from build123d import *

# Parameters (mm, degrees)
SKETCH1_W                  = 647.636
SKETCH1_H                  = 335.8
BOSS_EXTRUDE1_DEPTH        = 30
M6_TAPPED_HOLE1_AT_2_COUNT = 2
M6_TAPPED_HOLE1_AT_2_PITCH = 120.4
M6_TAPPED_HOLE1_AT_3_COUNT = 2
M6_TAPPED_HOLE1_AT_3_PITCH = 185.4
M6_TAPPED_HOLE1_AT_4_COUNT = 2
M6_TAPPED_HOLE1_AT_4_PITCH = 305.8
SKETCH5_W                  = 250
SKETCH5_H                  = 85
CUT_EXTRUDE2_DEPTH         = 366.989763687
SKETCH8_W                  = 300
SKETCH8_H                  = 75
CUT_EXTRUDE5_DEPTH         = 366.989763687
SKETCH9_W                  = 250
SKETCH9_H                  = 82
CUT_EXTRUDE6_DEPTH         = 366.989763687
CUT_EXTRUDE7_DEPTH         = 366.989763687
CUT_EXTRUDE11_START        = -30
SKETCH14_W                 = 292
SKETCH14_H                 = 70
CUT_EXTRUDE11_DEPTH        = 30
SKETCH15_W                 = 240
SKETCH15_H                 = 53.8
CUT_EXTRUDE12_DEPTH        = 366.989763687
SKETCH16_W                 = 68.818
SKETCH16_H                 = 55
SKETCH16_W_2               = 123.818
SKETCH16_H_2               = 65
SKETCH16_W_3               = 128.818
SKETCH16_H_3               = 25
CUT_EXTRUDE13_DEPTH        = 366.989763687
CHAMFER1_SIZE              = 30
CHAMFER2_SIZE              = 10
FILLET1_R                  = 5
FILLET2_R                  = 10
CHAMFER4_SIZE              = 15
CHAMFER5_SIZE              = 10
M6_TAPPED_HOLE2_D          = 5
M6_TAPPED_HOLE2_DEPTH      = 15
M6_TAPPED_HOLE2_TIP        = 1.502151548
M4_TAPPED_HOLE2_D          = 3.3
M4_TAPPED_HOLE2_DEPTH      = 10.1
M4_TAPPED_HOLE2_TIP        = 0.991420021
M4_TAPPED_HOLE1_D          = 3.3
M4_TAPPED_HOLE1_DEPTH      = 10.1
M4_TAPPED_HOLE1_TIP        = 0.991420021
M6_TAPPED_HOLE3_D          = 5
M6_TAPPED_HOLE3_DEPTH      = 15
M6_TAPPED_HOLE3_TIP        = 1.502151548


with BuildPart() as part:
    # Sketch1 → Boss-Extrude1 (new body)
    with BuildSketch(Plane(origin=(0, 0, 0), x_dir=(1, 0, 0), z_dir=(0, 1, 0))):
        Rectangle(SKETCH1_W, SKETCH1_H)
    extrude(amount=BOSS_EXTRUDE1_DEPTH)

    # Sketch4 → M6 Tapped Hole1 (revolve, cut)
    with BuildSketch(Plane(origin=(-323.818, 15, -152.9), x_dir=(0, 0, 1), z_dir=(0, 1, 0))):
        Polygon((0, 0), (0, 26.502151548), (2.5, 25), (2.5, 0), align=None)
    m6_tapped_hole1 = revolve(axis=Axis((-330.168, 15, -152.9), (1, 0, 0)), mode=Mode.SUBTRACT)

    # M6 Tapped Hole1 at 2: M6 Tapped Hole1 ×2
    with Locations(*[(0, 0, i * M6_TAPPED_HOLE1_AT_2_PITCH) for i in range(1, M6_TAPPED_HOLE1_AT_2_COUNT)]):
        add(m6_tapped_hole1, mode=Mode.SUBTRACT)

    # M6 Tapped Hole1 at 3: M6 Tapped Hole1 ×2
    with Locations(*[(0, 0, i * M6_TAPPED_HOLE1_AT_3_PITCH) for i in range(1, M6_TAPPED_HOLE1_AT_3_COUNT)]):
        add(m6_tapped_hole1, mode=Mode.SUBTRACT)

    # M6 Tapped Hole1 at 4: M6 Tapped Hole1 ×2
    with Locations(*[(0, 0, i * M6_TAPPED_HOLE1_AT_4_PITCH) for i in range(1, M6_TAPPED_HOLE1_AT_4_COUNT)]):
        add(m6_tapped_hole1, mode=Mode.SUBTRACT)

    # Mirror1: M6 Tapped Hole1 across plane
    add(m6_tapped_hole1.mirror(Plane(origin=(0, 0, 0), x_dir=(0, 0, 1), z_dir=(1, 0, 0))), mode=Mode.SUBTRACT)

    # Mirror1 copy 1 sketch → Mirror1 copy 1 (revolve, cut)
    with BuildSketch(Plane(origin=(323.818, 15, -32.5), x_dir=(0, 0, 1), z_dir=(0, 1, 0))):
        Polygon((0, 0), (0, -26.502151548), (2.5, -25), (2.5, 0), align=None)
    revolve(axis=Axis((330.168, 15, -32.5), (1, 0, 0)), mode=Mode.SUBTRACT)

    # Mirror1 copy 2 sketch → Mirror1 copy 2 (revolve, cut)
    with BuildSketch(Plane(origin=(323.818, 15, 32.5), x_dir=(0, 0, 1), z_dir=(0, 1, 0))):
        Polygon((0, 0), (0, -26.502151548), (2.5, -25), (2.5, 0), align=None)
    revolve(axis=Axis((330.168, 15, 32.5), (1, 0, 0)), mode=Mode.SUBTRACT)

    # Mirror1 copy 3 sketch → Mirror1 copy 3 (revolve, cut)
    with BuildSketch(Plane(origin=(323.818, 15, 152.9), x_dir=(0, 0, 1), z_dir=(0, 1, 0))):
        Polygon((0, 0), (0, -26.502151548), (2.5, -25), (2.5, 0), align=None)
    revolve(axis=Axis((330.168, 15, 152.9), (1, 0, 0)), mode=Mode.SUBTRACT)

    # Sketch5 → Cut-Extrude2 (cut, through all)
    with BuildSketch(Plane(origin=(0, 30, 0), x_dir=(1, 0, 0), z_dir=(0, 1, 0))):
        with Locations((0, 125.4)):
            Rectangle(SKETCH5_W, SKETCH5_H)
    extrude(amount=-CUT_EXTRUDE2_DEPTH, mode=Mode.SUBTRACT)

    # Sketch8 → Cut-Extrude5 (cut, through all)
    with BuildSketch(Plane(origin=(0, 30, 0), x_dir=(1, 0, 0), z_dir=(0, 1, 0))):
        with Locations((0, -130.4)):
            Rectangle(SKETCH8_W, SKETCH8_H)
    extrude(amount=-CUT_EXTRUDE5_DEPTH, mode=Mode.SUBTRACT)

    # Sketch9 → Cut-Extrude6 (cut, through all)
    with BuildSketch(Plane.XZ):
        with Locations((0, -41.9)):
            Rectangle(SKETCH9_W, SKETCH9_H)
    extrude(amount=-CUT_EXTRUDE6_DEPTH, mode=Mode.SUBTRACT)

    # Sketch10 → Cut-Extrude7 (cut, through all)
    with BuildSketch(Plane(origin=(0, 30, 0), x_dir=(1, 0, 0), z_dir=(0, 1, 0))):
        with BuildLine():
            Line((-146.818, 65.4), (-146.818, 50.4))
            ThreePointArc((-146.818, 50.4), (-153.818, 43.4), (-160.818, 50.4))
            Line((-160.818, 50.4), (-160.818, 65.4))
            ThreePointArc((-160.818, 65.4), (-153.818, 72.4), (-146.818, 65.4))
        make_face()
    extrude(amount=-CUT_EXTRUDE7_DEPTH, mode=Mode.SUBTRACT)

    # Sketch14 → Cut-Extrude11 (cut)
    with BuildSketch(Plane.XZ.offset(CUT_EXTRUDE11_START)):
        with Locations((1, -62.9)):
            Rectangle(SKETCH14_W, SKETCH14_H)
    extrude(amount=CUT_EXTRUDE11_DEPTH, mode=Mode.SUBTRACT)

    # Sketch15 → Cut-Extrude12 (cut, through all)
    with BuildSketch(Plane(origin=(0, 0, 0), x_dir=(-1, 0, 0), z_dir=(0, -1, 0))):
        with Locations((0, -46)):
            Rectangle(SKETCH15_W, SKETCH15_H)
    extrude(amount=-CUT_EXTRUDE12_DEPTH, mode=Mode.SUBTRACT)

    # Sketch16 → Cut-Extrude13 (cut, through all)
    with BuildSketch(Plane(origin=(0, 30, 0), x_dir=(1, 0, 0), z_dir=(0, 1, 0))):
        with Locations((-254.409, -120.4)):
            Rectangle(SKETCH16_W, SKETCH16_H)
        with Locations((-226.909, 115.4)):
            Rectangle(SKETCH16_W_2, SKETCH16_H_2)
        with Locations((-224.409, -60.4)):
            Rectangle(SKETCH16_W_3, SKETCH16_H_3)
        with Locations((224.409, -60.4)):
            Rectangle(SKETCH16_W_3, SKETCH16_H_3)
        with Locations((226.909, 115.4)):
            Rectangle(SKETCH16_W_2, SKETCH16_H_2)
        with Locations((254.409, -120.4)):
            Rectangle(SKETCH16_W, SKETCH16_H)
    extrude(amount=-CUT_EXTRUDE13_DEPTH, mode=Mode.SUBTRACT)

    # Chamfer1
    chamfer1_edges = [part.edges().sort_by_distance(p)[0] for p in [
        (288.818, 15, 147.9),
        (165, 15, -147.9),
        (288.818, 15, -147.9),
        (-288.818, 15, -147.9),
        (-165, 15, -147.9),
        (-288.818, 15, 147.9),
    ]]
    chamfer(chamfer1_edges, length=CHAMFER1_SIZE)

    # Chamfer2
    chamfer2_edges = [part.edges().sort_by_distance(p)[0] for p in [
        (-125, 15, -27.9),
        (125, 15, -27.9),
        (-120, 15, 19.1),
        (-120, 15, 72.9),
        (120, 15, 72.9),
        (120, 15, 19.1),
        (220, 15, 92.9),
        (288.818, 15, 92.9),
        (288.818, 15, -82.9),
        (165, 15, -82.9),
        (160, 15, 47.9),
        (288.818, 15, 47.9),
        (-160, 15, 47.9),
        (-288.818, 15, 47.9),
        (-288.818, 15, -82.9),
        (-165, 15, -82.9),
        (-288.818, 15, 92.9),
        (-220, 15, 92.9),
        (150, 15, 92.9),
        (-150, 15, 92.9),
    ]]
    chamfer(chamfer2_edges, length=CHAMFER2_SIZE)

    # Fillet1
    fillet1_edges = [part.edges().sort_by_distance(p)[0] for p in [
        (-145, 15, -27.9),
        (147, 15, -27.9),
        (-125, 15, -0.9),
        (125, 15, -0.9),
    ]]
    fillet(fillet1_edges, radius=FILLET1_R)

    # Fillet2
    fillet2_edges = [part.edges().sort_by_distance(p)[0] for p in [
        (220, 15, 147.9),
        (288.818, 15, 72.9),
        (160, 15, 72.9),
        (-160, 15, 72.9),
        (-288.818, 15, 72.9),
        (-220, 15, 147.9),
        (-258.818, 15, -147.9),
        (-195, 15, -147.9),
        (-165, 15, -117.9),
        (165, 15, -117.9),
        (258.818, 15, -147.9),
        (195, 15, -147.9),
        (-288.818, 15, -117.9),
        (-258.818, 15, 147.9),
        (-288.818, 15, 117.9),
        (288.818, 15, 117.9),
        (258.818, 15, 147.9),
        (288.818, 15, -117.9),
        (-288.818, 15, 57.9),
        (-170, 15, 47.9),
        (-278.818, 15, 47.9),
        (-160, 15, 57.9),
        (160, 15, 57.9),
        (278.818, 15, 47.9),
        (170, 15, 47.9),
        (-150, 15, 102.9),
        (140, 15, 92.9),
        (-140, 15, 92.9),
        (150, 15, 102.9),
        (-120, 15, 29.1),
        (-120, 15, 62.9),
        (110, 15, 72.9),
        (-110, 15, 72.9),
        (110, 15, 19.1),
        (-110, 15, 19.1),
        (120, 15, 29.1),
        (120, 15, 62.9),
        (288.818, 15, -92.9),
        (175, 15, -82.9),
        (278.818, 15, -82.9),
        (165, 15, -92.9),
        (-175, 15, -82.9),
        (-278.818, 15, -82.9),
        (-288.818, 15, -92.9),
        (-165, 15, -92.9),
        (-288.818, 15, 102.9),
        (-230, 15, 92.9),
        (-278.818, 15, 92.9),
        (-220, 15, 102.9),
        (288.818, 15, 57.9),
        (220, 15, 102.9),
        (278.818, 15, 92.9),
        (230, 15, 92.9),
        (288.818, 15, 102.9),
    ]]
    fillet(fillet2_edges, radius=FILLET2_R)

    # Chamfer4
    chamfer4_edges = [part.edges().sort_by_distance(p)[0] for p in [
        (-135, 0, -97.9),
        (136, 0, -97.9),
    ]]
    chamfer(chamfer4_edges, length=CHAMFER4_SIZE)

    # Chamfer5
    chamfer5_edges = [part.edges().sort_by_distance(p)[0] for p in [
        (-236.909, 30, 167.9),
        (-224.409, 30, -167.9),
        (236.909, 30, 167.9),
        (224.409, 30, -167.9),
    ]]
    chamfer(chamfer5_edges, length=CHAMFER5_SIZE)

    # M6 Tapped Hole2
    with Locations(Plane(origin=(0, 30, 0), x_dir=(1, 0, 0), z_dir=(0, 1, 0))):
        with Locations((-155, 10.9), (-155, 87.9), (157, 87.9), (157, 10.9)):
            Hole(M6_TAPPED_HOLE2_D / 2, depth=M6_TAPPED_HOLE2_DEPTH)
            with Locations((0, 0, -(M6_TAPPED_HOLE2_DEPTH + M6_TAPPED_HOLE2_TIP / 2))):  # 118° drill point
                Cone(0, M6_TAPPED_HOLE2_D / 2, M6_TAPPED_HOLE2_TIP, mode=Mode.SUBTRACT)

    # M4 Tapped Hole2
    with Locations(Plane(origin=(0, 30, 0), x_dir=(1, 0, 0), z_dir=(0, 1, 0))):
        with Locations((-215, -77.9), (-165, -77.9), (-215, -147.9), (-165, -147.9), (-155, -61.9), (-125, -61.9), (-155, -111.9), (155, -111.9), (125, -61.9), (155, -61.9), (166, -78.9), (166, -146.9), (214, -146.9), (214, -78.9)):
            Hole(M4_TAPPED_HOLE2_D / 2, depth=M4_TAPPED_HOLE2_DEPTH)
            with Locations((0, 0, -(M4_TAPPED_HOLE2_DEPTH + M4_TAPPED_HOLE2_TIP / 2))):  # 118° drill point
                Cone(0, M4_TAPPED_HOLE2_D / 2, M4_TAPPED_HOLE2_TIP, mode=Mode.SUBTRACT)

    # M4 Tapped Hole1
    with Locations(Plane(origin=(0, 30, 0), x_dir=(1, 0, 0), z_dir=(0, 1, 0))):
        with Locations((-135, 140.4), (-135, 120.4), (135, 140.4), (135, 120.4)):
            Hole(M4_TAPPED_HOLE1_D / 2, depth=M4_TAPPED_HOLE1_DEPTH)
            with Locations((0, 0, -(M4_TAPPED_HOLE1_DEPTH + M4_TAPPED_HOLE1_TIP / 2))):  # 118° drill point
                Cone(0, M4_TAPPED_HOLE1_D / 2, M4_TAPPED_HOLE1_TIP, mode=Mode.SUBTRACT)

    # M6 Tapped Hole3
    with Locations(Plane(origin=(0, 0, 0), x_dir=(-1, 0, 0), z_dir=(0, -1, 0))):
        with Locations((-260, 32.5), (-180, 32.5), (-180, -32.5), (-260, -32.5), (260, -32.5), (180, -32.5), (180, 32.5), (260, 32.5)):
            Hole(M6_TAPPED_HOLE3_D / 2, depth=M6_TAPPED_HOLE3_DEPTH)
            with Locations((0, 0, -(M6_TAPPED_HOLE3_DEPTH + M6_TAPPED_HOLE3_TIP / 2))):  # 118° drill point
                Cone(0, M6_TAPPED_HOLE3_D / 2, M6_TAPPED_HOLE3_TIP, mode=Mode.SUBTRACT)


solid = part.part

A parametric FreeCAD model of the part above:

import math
import FreeCAD as App
import Part
import Sketcher
Q = App.Units.Quantity


def edges_at(feature, points):
    """Names of the edges that pass closest to the given points."""
    edges = feature.Shape.Edges
    near = lambda p: min(range(len(edges)), key=lambda i: edges[i].distToShape(Part.Vertex(*p))[0])
    return sorted({f"Edge{near(p) + 1}" for p in points})

doc = App.newDocument("Part")
body = doc.addObject("PartDesign::Body", "Body")

sketch1 = body.newObject("Sketcher::SketchObject", "Sketch")
sketch1.AttachmentSupport = (doc.getObject("XZ_Plane"), [""])
sketch1.MapMode = "FlatFace"
sketch1.addGeometry(Part.LineSegment(App.Vector(-323.818, -167.9, 0), App.Vector(-323.818, 167.9, 0)), False)
sketch1.addGeometry(Part.LineSegment(App.Vector(-323.818, 167.9, 0), App.Vector(323.818, 167.9, 0)), False)
sketch1.addGeometry(Part.LineSegment(App.Vector(323.818, 167.9, 0), App.Vector(323.818, -167.9, 0)), False)
sketch1.addGeometry(Part.LineSegment(App.Vector(323.818, -167.9, 0), App.Vector(-323.818, -167.9, 0)), False)
sketch1.addConstraint(Sketcher.Constraint("Coincident", 0, 2, 1, 1))
sketch1.addConstraint(Sketcher.Constraint("Coincident", 1, 2, 2, 1))
sketch1.addConstraint(Sketcher.Constraint("Coincident", 2, 2, 3, 1))
sketch1.addConstraint(Sketcher.Constraint("Coincident", 3, 2, 0, 1))
sketch1.addConstraint(Sketcher.Constraint("Vertical", 0))
sketch1.addConstraint(Sketcher.Constraint("Horizontal", 1))
sketch1.addConstraint(Sketcher.Constraint("Vertical", 2))
sketch1.addConstraint(Sketcher.Constraint("Horizontal", 3))
sketch1.addConstraint(Sketcher.Constraint("Symmetric", 0, 2, 2, 2, -1, 1))
sketch1.addConstraint(Sketcher.Constraint("DistanceY", 0, 1, 0, 2, 335.8))
sketch1.addConstraint(Sketcher.Constraint("DistanceX", 1, 1, 1, 2, 647.636))
pad1 = body.newObject("PartDesign::Pad", "Pad")
pad1.Profile = sketch1
pad1.Length = 30
pad1.Reversed = True

sketch2 = body.newObject("Sketcher::SketchObject", "Sketch001")
sketch2.AttachmentSupport = (doc.getObject("XZ_Plane"), [""])
sketch2.MapMode = "FlatFace"
sketch2.AttachmentOffset = App.Placement(App.Vector(0, 0, -15), App.Rotation())
sketch2.addGeometry(Part.LineSegment(App.Vector(-297.315848, -152.9, 0), App.Vector(-323.818, -152.9, 0)), False)
sketch2.addGeometry(Part.LineSegment(App.Vector(-323.818, -152.9, 0), App.Vector(-323.818, -150.4, 0)), False)
sketch2.addGeometry(Part.LineSegment(App.Vector(-323.818, -150.4, 0), App.Vector(-298.818, -150.4, 0)), False)
sketch2.addGeometry(Part.LineSegment(App.Vector(-298.818, -150.4, 0), App.Vector(-297.315848, -152.9, 0)), False)
sketch2.addGeometry(Part.LineSegment(App.Vector(-323.818, -152.9, 0), App.Vector(-297.315848, -152.9, 0)), True)
sketch2.addConstraint(Sketcher.Constraint("Coincident", 0, 2, 1, 1))
sketch2.addConstraint(Sketcher.Constraint("Coincident", 1, 2, 2, 1))
sketch2.addConstraint(Sketcher.Constraint("Coincident", 2, 2, 3, 1))
sketch2.addConstraint(Sketcher.Constraint("Coincident", 3, 2, 0, 1))
sketch2.addConstraint(Sketcher.Constraint("Horizontal", 0))
sketch2.addConstraint(Sketcher.Constraint("Vertical", 1))
sketch2.addConstraint(Sketcher.Constraint("Horizontal", 2))
sketch2.addConstraint(Sketcher.Constraint("Horizontal", 4))
sketch2.addConstraint(Sketcher.Constraint("Coincident", 4, 1, 0, 2))
sketch2.addConstraint(Sketcher.Constraint("Equal", 0, 4))
sketch2.addConstraint(Sketcher.Constraint("DistanceX", 2, 1, 2, 2, 25.0))
sketch2.addConstraint(Sketcher.Constraint("Angle", 3, Q("-59 deg")))
sketch2.addConstraint(Sketcher.Constraint("DistanceY", 1, 1, 1, 2, 2.5))
sketch2.addConstraint(Sketcher.Constraint("DistanceY", 0, 2, -1, 1, 152.9))
sketch2.addConstraint(Sketcher.Constraint("DistanceX", 0, 2, -1, 1, 323.818))
groove = body.newObject("PartDesign::Groove", "Groove")
groove.Profile = sketch2
groove.ReferenceAxis = (sketch2, ["Axis0"])
groove.Angle = 360
doc.recompute()

linearpattern = body.newObject("PartDesign::LinearPattern", "LinearPattern")
linearpattern.Originals = [groove]
linearpattern.Direction = (doc.getObject("Z_Axis"), [""])
linearpattern.Mode = "offset"
linearpattern.Offset = 120.4
linearpattern.Occurrences = 2
body.Tip = linearpattern
doc.recompute()

linearpattern2 = body.newObject("PartDesign::LinearPattern", "LinearPattern001")
linearpattern2.Originals = [groove]
linearpattern2.Direction = (doc.getObject("Z_Axis"), [""])
linearpattern2.Mode = "offset"
linearpattern2.Offset = 185.4
linearpattern2.Occurrences = 2
body.Tip = linearpattern2
doc.recompute()

linearpattern3 = body.newObject("PartDesign::LinearPattern", "LinearPattern002")
linearpattern3.Originals = [groove]
linearpattern3.Direction = (doc.getObject("Z_Axis"), [""])
linearpattern3.Mode = "offset"
linearpattern3.Offset = 305.8
linearpattern3.Occurrences = 2
body.Tip = linearpattern3
doc.recompute()

mirrored = body.newObject("PartDesign::Mirrored", "Mirrored")
mirrored.Originals = [groove]
mirrored.MirrorPlane = (doc.getObject("YZ_Plane"), [""])
body.Tip = mirrored

sketch3 = body.newObject("Sketcher::SketchObject", "Sketch002")
sketch3.AttachmentSupport = (doc.getObject("XZ_Plane"), [""])
sketch3.MapMode = "FlatFace"
sketch3.AttachmentOffset = App.Placement(App.Vector(0, 0, -15), App.Rotation())
sketch3.addGeometry(Part.LineSegment(App.Vector(323.818, -32.5, 0), App.Vector(297.315848, -32.5, 0)), False)
sketch3.addGeometry(Part.LineSegment(App.Vector(297.315848, -32.5, 0), App.Vector(298.818, -30, 0)), False)
sketch3.addGeometry(Part.LineSegment(App.Vector(298.818, -30, 0), App.Vector(323.818, -30, 0)), False)
sketch3.addGeometry(Part.LineSegment(App.Vector(323.818, -30, 0), App.Vector(323.818, -32.5, 0)), False)
sketch3.addGeometry(Part.LineSegment(App.Vector(297.315848, -32.5, 0), App.Vector(323.818, -32.5, 0)), True)
sketch3.addConstraint(Sketcher.Constraint("Coincident", 0, 2, 1, 1))
sketch3.addConstraint(Sketcher.Constraint("Coincident", 1, 2, 2, 1))
sketch3.addConstraint(Sketcher.Constraint("Coincident", 2, 2, 3, 1))
sketch3.addConstraint(Sketcher.Constraint("Coincident", 3, 2, 0, 1))
sketch3.addConstraint(Sketcher.Constraint("Horizontal", 0))
sketch3.addConstraint(Sketcher.Constraint("Horizontal", 2))
sketch3.addConstraint(Sketcher.Constraint("Vertical", 3))
sketch3.addConstraint(Sketcher.Constraint("Horizontal", 4))
sketch3.addConstraint(Sketcher.Constraint("Coincident", 4, 1, 0, 2))
sketch3.addConstraint(Sketcher.Constraint("Vertical", 2, 2, 4, 2))
sketch3.addConstraint(Sketcher.Constraint("DistanceX", 2, 1, 2, 2, 25.0))
sketch3.addConstraint(Sketcher.Constraint("Angle", 1, Q("59 deg")))
sketch3.addConstraint(Sketcher.Constraint("DistanceY", 3, 2, 3, 1, 2.5))
sketch3.addConstraint(Sketcher.Constraint("DistanceY", 1, 2, -1, 1, 30.0))
sketch3.addConstraint(Sketcher.Constraint("DistanceX", -1, 1, 1, 2, 298.818))
groove2 = body.newObject("PartDesign::Groove", "Groove001")
groove2.Profile = sketch3
groove2.ReferenceAxis = (sketch3, ["Axis0"])
groove2.Angle = 360

sketch4 = body.newObject("Sketcher::SketchObject", "Sketch003")
sketch4.AttachmentSupport = (doc.getObject("XZ_Plane"), [""])
sketch4.MapMode = "FlatFace"
sketch4.AttachmentOffset = App.Placement(App.Vector(0, 0, -15), App.Rotation())
sketch4.addGeometry(Part.LineSegment(App.Vector(323.818, 32.5, 0), App.Vector(297.315848, 32.5, 0)), False)
sketch4.addGeometry(Part.LineSegment(App.Vector(297.315848, 32.5, 0), App.Vector(298.818, 35, 0)), False)
sketch4.addGeometry(Part.LineSegment(App.Vector(298.818, 35, 0), App.Vector(323.818, 35, 0)), False)
sketch4.addGeometry(Part.LineSegment(App.Vector(323.818, 35, 0), App.Vector(323.818, 32.5, 0)), False)
sketch4.addGeometry(Part.LineSegment(App.Vector(297.315848, 32.5, 0), App.Vector(323.818, 32.5, 0)), True)
sketch4.addConstraint(Sketcher.Constraint("Coincident", 0, 2, 1, 1))
sketch4.addConstraint(Sketcher.Constraint("Coincident", 1, 2, 2, 1))
sketch4.addConstraint(Sketcher.Constraint("Coincident", 2, 2, 3, 1))
sketch4.addConstraint(Sketcher.Constraint("Coincident", 3, 2, 0, 1))
sketch4.addConstraint(Sketcher.Constraint("Horizontal", 0))
sketch4.addConstraint(Sketcher.Constraint("Horizontal", 2))
sketch4.addConstraint(Sketcher.Constraint("Vertical", 3))
sketch4.addConstraint(Sketcher.Constraint("Horizontal", 4))
sketch4.addConstraint(Sketcher.Constraint("Coincident", 4, 1, 0, 2))
sketch4.addConstraint(Sketcher.Constraint("Vertical", 2, 2, 4, 2))
sketch4.addConstraint(Sketcher.Constraint("DistanceX", 2, 1, 2, 2, 25.0))
sketch4.addConstraint(Sketcher.Constraint("Angle", 1, Q("59 deg")))
sketch4.addConstraint(Sketcher.Constraint("DistanceY", 3, 2, 3, 1, 2.5))
sketch4.addConstraint(Sketcher.Constraint("DistanceY", -1, 1, 1, 2, 35.0))
sketch4.addConstraint(Sketcher.Constraint("DistanceX", -1, 1, 1, 2, 298.818))
groove3 = body.newObject("PartDesign::Groove", "Groove002")
groove3.Profile = sketch4
groove3.ReferenceAxis = (sketch4, ["Axis0"])
groove3.Angle = 360

sketch5 = body.newObject("Sketcher::SketchObject", "Sketch004")
sketch5.AttachmentSupport = (doc.getObject("XZ_Plane"), [""])
sketch5.MapMode = "FlatFace"
sketch5.AttachmentOffset = App.Placement(App.Vector(0, 0, -15), App.Rotation())
sketch5.addGeometry(Part.LineSegment(App.Vector(323.818, 152.9, 0), App.Vector(297.315848, 152.9, 0)), False)
sketch5.addGeometry(Part.LineSegment(App.Vector(297.315848, 152.9, 0), App.Vector(298.818, 155.4, 0)), False)
sketch5.addGeometry(Part.LineSegment(App.Vector(298.818, 155.4, 0), App.Vector(323.818, 155.4, 0)), False)
sketch5.addGeometry(Part.LineSegment(App.Vector(323.818, 155.4, 0), App.Vector(323.818, 152.9, 0)), False)
sketch5.addGeometry(Part.LineSegment(App.Vector(297.315848, 152.9, 0), App.Vector(323.818, 152.9, 0)), True)
sketch5.addConstraint(Sketcher.Constraint("Coincident", 0, 2, 1, 1))
sketch5.addConstraint(Sketcher.Constraint("Coincident", 1, 2, 2, 1))
sketch5.addConstraint(Sketcher.Constraint("Coincident", 2, 2, 3, 1))
sketch5.addConstraint(Sketcher.Constraint("Coincident", 3, 2, 0, 1))
sketch5.addConstraint(Sketcher.Constraint("Horizontal", 0))
sketch5.addConstraint(Sketcher.Constraint("Horizontal", 2))
sketch5.addConstraint(Sketcher.Constraint("Vertical", 3))
sketch5.addConstraint(Sketcher.Constraint("Horizontal", 4))
sketch5.addConstraint(Sketcher.Constraint("Coincident", 4, 1, 0, 2))
sketch5.addConstraint(Sketcher.Constraint("Vertical", 2, 2, 4, 2))
sketch5.addConstraint(Sketcher.Constraint("DistanceX", 2, 1, 2, 2, 25.0))
sketch5.addConstraint(Sketcher.Constraint("Angle", 1, Q("59 deg")))
sketch5.addConstraint(Sketcher.Constraint("DistanceY", 3, 2, 3, 1, 2.5))
sketch5.addConstraint(Sketcher.Constraint("DistanceY", -1, 1, 0, 2, 152.9))
sketch5.addConstraint(Sketcher.Constraint("DistanceX", -1, 1, 1, 2, 298.818))
groove4 = body.newObject("PartDesign::Groove", "Groove003")
groove4.Profile = sketch5
groove4.ReferenceAxis = (sketch5, ["Axis0"])
groove4.Angle = 360

sketch6 = body.newObject("Sketcher::SketchObject", "Sketch005")
sketch6.AttachmentSupport = (doc.getObject("XZ_Plane"), [""])
sketch6.MapMode = "FlatFace"
sketch6.AttachmentOffset = App.Placement(App.Vector(0, 0, -30), App.Rotation())
sketch6.addGeometry(Part.LineSegment(App.Vector(-125, -167.9, 0), App.Vector(-125, -82.9, 0)), False)
sketch6.addGeometry(Part.LineSegment(App.Vector(-125, -82.9, 0), App.Vector(125, -82.9, 0)), False)
sketch6.addGeometry(Part.LineSegment(App.Vector(125, -82.9, 0), App.Vector(125, -167.9, 0)), False)
sketch6.addGeometry(Part.LineSegment(App.Vector(125, -167.9, 0), App.Vector(-125, -167.9, 0)), False)
sketch6.addConstraint(Sketcher.Constraint("Coincident", 0, 2, 1, 1))
sketch6.addConstraint(Sketcher.Constraint("Coincident", 1, 2, 2, 1))
sketch6.addConstraint(Sketcher.Constraint("Coincident", 2, 2, 3, 1))
sketch6.addConstraint(Sketcher.Constraint("Coincident", 3, 2, 0, 1))
sketch6.addConstraint(Sketcher.Constraint("Vertical", 0))
sketch6.addConstraint(Sketcher.Constraint("Horizontal", 1))
sketch6.addConstraint(Sketcher.Constraint("Vertical", 2))
sketch6.addConstraint(Sketcher.Constraint("Horizontal", 3))
sketch6.addConstraint(Sketcher.Constraint("DistanceX", 1, 1, 1, 2, 250.0))
sketch6.addConstraint(Sketcher.Constraint("DistanceY", 0, 1, 0, 2, 85.0))
sketch6.addConstraint(Sketcher.Constraint("DistanceX", 0, 2, -1, 1, 125.0))
sketch6.addConstraint(Sketcher.Constraint("DistanceY", 0, 2, -1, 1, 82.9))
pocket1 = body.newObject("PartDesign::Pocket", "Pocket")
pocket1.Profile = sketch6
pocket1.Type = "ThroughAll"
pocket1.Reversed = True

sketch7 = body.newObject("Sketcher::SketchObject", "Sketch006")
sketch7.AttachmentSupport = (doc.getObject("XZ_Plane"), [""])
sketch7.MapMode = "FlatFace"
sketch7.AttachmentOffset = App.Placement(App.Vector(0, 0, -30), App.Rotation())
sketch7.addGeometry(Part.LineSegment(App.Vector(-150, 92.9, 0), App.Vector(-150, 167.9, 0)), False)
sketch7.addGeometry(Part.LineSegment(App.Vector(-150, 167.9, 0), App.Vector(150, 167.9, 0)), False)
sketch7.addGeometry(Part.LineSegment(App.Vector(150, 167.9, 0), App.Vector(150, 92.9, 0)), False)
sketch7.addGeometry(Part.LineSegment(App.Vector(150, 92.9, 0), App.Vector(-150, 92.9, 0)), False)
sketch7.addConstraint(Sketcher.Constraint("Coincident", 0, 2, 1, 1))
sketch7.addConstraint(Sketcher.Constraint("Coincident", 1, 2, 2, 1))
sketch7.addConstraint(Sketcher.Constraint("Coincident", 2, 2, 3, 1))
sketch7.addConstraint(Sketcher.Constraint("Coincident", 3, 2, 0, 1))
sketch7.addConstraint(Sketcher.Constraint("Vertical", 0))
sketch7.addConstraint(Sketcher.Constraint("Horizontal", 1))
sketch7.addConstraint(Sketcher.Constraint("Vertical", 2))
sketch7.addConstraint(Sketcher.Constraint("Horizontal", 3))
sketch7.addConstraint(Sketcher.Constraint("DistanceX", 1, 1, 1, 2, 300.0))
sketch7.addConstraint(Sketcher.Constraint("DistanceY", 0, 1, 0, 2, 75.0))
sketch7.addConstraint(Sketcher.Constraint("DistanceX", 0, 2, -1, 1, 150.0))
sketch7.addConstraint(Sketcher.Constraint("DistanceY", -1, 1, 0, 2, 167.9))
pocket2 = body.newObject("PartDesign::Pocket", "Pocket001")
pocket2.Profile = sketch7
pocket2.Type = "ThroughAll"
pocket2.Reversed = True

sketch8 = body.newObject("Sketcher::SketchObject", "Sketch007")
sketch8.AttachmentSupport = (doc.getObject("XZ_Plane"), [""])
sketch8.MapMode = "FlatFace"
sketch8.addGeometry(Part.LineSegment(App.Vector(-125, -0.9, 0), App.Vector(-125, -82.9, 0)), False)
sketch8.addGeometry(Part.LineSegment(App.Vector(-125, -82.9, 0), App.Vector(125, -82.9, 0)), False)
sketch8.addGeometry(Part.LineSegment(App.Vector(125, -82.9, 0), App.Vector(125, -0.9, 0)), False)
sketch8.addGeometry(Part.LineSegment(App.Vector(125, -0.9, 0), App.Vector(-125, -0.9, 0)), False)
sketch8.addConstraint(Sketcher.Constraint("Coincident", 0, 2, 1, 1))
sketch8.addConstraint(Sketcher.Constraint("Coincident", 1, 2, 2, 1))
sketch8.addConstraint(Sketcher.Constraint("Coincident", 2, 2, 3, 1))
sketch8.addConstraint(Sketcher.Constraint("Coincident", 3, 2, 0, 1))
sketch8.addConstraint(Sketcher.Constraint("Vertical", 0))
sketch8.addConstraint(Sketcher.Constraint("Horizontal", 1))
sketch8.addConstraint(Sketcher.Constraint("Vertical", 2))
sketch8.addConstraint(Sketcher.Constraint("Horizontal", 3))
sketch8.addConstraint(Sketcher.Constraint("DistanceX", 1, 1, 1, 2, 250.0))
sketch8.addConstraint(Sketcher.Constraint("DistanceY", 0, 2, 0, 1, 82.0))
sketch8.addConstraint(Sketcher.Constraint("DistanceX", 0, 2, -1, 1, 125.0))
sketch8.addConstraint(Sketcher.Constraint("DistanceY", 0, 2, -1, 1, 82.9))
pocket3 = body.newObject("PartDesign::Pocket", "Pocket002")
pocket3.Profile = sketch8
pocket3.Type = "ThroughAll"

sketch9 = body.newObject("Sketcher::SketchObject", "Sketch008")
sketch9.AttachmentSupport = (doc.getObject("XZ_Plane"), [""])
sketch9.MapMode = "FlatFace"
sketch9.AttachmentOffset = App.Placement(App.Vector(0, 0, -30), App.Rotation())
sketch9.addGeometry(Part.LineSegment(App.Vector(-146.818, -50.4, 0), App.Vector(-146.818, -65.4, 0)), False)
sketch9.addGeometry(Part.ArcOfCircle(Part.Circle(App.Vector(-153.818, -65.4, 0), App.Vector(0, 0, 1), 7), math.radians(180), math.radians(360)), False)
sketch9.addGeometry(Part.LineSegment(App.Vector(-160.818, -65.4, 0), App.Vector(-160.818, -50.4, 0)), False)
sketch9.addGeometry(Part.ArcOfCircle(Part.Circle(App.Vector(-153.818, -50.4, 0), App.Vector(0, 0, 1), 7), math.radians(0), math.radians(180)), False)
sketch9.addConstraint(Sketcher.Constraint("Tangent", 0, 2, 1, 2))
sketch9.addConstraint(Sketcher.Constraint("Tangent", 1, 1, 2, 1))
sketch9.addConstraint(Sketcher.Constraint("Tangent", 2, 2, 3, 2))
sketch9.addConstraint(Sketcher.Constraint("Tangent", 3, 1, 0, 1))
sketch9.addConstraint(Sketcher.Constraint("Vertical", 0))
sketch9.addConstraint(Sketcher.Constraint("Vertical", 2))
sketch9.addConstraint(Sketcher.Constraint("Radius", 1, 7.0))
sketch9.addConstraint(Sketcher.Constraint("DistanceY", 0, 2, 0, 1, 15.0))
sketch9.addConstraint(Sketcher.Constraint("DistanceY", 1, 3, -1, 1, 65.4))
sketch9.addConstraint(Sketcher.Constraint("DistanceX", 1, 3, -1, 1, 153.818))
pocket4 = body.newObject("PartDesign::Pocket", "Pocket003")
pocket4.Profile = sketch9
pocket4.Type = "ThroughAll"
pocket4.Reversed = True

sketch10 = body.newObject("Sketcher::SketchObject", "Sketch009")
sketch10.AttachmentSupport = (doc.getObject("XZ_Plane"), [""])
sketch10.MapMode = "FlatFace"
sketch10.AttachmentOffset = App.Placement(App.Vector(0, 0, -30), App.Rotation())
sketch10.addGeometry(Part.LineSegment(App.Vector(-145, -27.9, 0), App.Vector(-145, -97.9, 0)), False)
sketch10.addGeometry(Part.LineSegment(App.Vector(-145, -97.9, 0), App.Vector(147, -97.9, 0)), False)
sketch10.addGeometry(Part.LineSegment(App.Vector(147, -97.9, 0), App.Vector(147, -27.9, 0)), False)
sketch10.addGeometry(Part.LineSegment(App.Vector(147, -27.9, 0), App.Vector(-145, -27.9, 0)), False)
sketch10.addConstraint(Sketcher.Constraint("Coincident", 0, 2, 1, 1))
sketch10.addConstraint(Sketcher.Constraint("Coincident", 1, 2, 2, 1))
sketch10.addConstraint(Sketcher.Constraint("Coincident", 2, 2, 3, 1))
sketch10.addConstraint(Sketcher.Constraint("Coincident", 3, 2, 0, 1))
sketch10.addConstraint(Sketcher.Constraint("Vertical", 0))
sketch10.addConstraint(Sketcher.Constraint("Horizontal", 1))
sketch10.addConstraint(Sketcher.Constraint("Vertical", 2))
sketch10.addConstraint(Sketcher.Constraint("Horizontal", 3))
sketch10.addConstraint(Sketcher.Constraint("DistanceX", 1, 1, 1, 2, 292.0))
sketch10.addConstraint(Sketcher.Constraint("DistanceY", 0, 2, 0, 1, 70.0))
sketch10.addConstraint(Sketcher.Constraint("DistanceX", 0, 2, -1, 1, 145.0))
sketch10.addConstraint(Sketcher.Constraint("DistanceY", 0, 2, -1, 1, 97.9))
pocket5 = body.newObject("PartDesign::Pocket", "Pocket004")
pocket5.Profile = sketch10
pocket5.Length = 30
pocket5.Reversed = True

sketch11 = body.newObject("Sketcher::SketchObject", "Sketch010")
sketch11.AttachmentSupport = (doc.getObject("XZ_Plane"), [""])
sketch11.MapMode = "FlatFace"
sketch11.addGeometry(Part.LineSegment(App.Vector(120, 19.1, 0), App.Vector(120, 72.9, 0)), False)
sketch11.addGeometry(Part.LineSegment(App.Vector(120, 72.9, 0), App.Vector(-120, 72.9, 0)), False)
sketch11.addGeometry(Part.LineSegment(App.Vector(-120, 72.9, 0), App.Vector(-120, 19.1, 0)), False)
sketch11.addGeometry(Part.LineSegment(App.Vector(-120, 19.1, 0), App.Vector(120, 19.1, 0)), False)
sketch11.addConstraint(Sketcher.Constraint("Coincident", 0, 2, 1, 1))
sketch11.addConstraint(Sketcher.Constraint("Coincident", 1, 2, 2, 1))
sketch11.addConstraint(Sketcher.Constraint("Coincident", 2, 2, 3, 1))
sketch11.addConstraint(Sketcher.Constraint("Coincident", 3, 2, 0, 1))
sketch11.addConstraint(Sketcher.Constraint("Vertical", 0))
sketch11.addConstraint(Sketcher.Constraint("Horizontal", 1))
sketch11.addConstraint(Sketcher.Constraint("Vertical", 2))
sketch11.addConstraint(Sketcher.Constraint("Horizontal", 3))
sketch11.addConstraint(Sketcher.Constraint("DistanceX", 1, 2, 1, 1, 240.0))
sketch11.addConstraint(Sketcher.Constraint("DistanceY", 0, 1, 0, 2, 53.8))
sketch11.addConstraint(Sketcher.Constraint("DistanceX", -1, 1, 0, 2, 120.0))
sketch11.addConstraint(Sketcher.Constraint("DistanceY", -1, 1, 0, 2, 72.9))
pocket6 = body.newObject("PartDesign::Pocket", "Pocket005")
pocket6.Profile = sketch11
pocket6.Type = "ThroughAll"

sketch12 = body.newObject("Sketcher::SketchObject", "Sketch011")
sketch12.AttachmentSupport = (doc.getObject("XZ_Plane"), [""])
sketch12.MapMode = "FlatFace"
sketch12.AttachmentOffset = App.Placement(App.Vector(0, 0, -30), App.Rotation())
sketch12.addGeometry(Part.LineSegment(App.Vector(-288.818, 92.9, 0), App.Vector(-288.818, 147.9, 0)), False)
sketch12.addGeometry(Part.LineSegment(App.Vector(-288.818, 147.9, 0), App.Vector(-220, 147.9, 0)), False)
sketch12.addGeometry(Part.LineSegment(App.Vector(-220, 147.9, 0), App.Vector(-220, 92.9, 0)), False)
sketch12.addGeometry(Part.LineSegment(App.Vector(-220, 92.9, 0), App.Vector(-288.818, 92.9, 0)), False)
sketch12.addGeometry(Part.LineSegment(App.Vector(-288.818, -147.9, 0), App.Vector(-288.818, -82.9, 0)), False)
sketch12.addGeometry(Part.LineSegment(App.Vector(-288.818, -82.9, 0), App.Vector(-165, -82.9, 0)), False)
sketch12.addGeometry(Part.LineSegment(App.Vector(-165, -82.9, 0), App.Vector(-165, -147.9, 0)), False)
sketch12.addGeometry(Part.LineSegment(App.Vector(-165, -147.9, 0), App.Vector(-288.818, -147.9, 0)), False)
sketch12.addGeometry(Part.LineSegment(App.Vector(-288.818, 47.9, 0), App.Vector(-288.818, 72.9, 0)), False)
sketch12.addGeometry(Part.LineSegment(App.Vector(-288.818, 72.9, 0), App.Vector(-160, 72.9, 0)), False)
sketch12.addGeometry(Part.LineSegment(App.Vector(-160, 72.9, 0), App.Vector(-160, 47.9, 0)), False)
sketch12.addGeometry(Part.LineSegment(App.Vector(-160, 47.9, 0), App.Vector(-288.818, 47.9, 0)), False)
sketch12.addGeometry(Part.LineSegment(App.Vector(160, 47.9, 0), App.Vector(160, 72.9, 0)), False)
sketch12.addGeometry(Part.LineSegment(App.Vector(160, 72.9, 0), App.Vector(288.818, 72.9, 0)), False)
sketch12.addGeometry(Part.LineSegment(App.Vector(288.818, 72.9, 0), App.Vector(288.818, 47.9, 0)), False)
sketch12.addGeometry(Part.LineSegment(App.Vector(288.818, 47.9, 0), App.Vector(160, 47.9, 0)), False)
sketch12.addGeometry(Part.LineSegment(App.Vector(165, -147.9, 0), App.Vector(165, -82.9, 0)), False)
sketch12.addGeometry(Part.LineSegment(App.Vector(165, -82.9, 0), App.Vector(288.818, -82.9, 0)), False)
sketch12.addGeometry(Part.LineSegment(App.Vector(288.818, -82.9, 0), App.Vector(288.818, -147.9, 0)), False)
sketch12.addGeometry(Part.LineSegment(App.Vector(288.818, -147.9, 0), App.Vector(165, -147.9, 0)), False)
sketch12.addGeometry(Part.LineSegment(App.Vector(220, 92.9, 0), App.Vector(220, 147.9, 0)), False)
sketch12.addGeometry(Part.LineSegment(App.Vector(220, 147.9, 0), App.Vector(288.818, 147.9, 0)), False)
sketch12.addGeometry(Part.LineSegment(App.Vector(288.818, 147.9, 0), App.Vector(288.818, 92.9, 0)), False)
sketch12.addGeometry(Part.LineSegment(App.Vector(288.818, 92.9, 0), App.Vector(220, 92.9, 0)), False)
sketch12.addConstraint(Sketcher.Constraint("Coincident", 0, 2, 1, 1))
sketch12.addConstraint(Sketcher.Constraint("Coincident", 1, 2, 2, 1))
sketch12.addConstraint(Sketcher.Constraint("Coincident", 2, 2, 3, 1))
sketch12.addConstraint(Sketcher.Constraint("Coincident", 3, 2, 0, 1))
sketch12.addConstraint(Sketcher.Constraint("Coincident", 4, 2, 5, 1))
sketch12.addConstraint(Sketcher.Constraint("Coincident", 5, 2, 6, 1))
sketch12.addConstraint(Sketcher.Constraint("Coincident", 6, 2, 7, 1))
sketch12.addConstraint(Sketcher.Constraint("Coincident", 7, 2, 4, 1))
sketch12.addConstraint(Sketcher.Constraint("Coincident", 8, 2, 9, 1))
sketch12.addConstraint(Sketcher.Constraint("Coincident", 9, 2, 10, 1))
sketch12.addConstraint(Sketcher.Constraint("Coincident", 10, 2, 11, 1))
sketch12.addConstraint(Sketcher.Constraint("Coincident", 11, 2, 8, 1))
sketch12.addConstraint(Sketcher.Constraint("Coincident", 12, 2, 13, 1))
sketch12.addConstraint(Sketcher.Constraint("Coincident", 13, 2, 14, 1))
sketch12.addConstraint(Sketcher.Constraint("Coincident", 14, 2, 15, 1))
sketch12.addConstraint(Sketcher.Constraint("Coincident", 15, 2, 12, 1))
sketch12.addConstraint(Sketcher.Constraint("Coincident", 16, 2, 17, 1))
sketch12.addConstraint(Sketcher.Constraint("Coincident", 17, 2, 18, 1))
sketch12.addConstraint(Sketcher.Constraint("Coincident", 18, 2, 19, 1))
sketch12.addConstraint(Sketcher.Constraint("Coincident", 19, 2, 16, 1))
sketch12.addConstraint(Sketcher.Constraint("Coincident", 20, 2, 21, 1))
sketch12.addConstraint(Sketcher.Constraint("Coincident", 21, 2, 22, 1))
sketch12.addConstraint(Sketcher.Constraint("Coincident", 22, 2, 23, 1))
sketch12.addConstraint(Sketcher.Constraint("Coincident", 23, 2, 20, 1))
sketch12.addConstraint(Sketcher.Constraint("Vertical", 0))
sketch12.addConstraint(Sketcher.Constraint("Horizontal", 1))
sketch12.addConstraint(Sketcher.Constraint("Vertical", 2))
sketch12.addConstraint(Sketcher.Constraint("Horizontal", 3))
sketch12.addConstraint(Sketcher.Constraint("Vertical", 4))
sketch12.addConstraint(Sketcher.Constraint("Horizontal", 5))
sketch12.addConstraint(Sketcher.Constraint("Vertical", 6))
sketch12.addConstraint(Sketcher.Constraint("Horizontal", 7))
sketch12.addConstraint(Sketcher.Constraint("Vertical", 8))
sketch12.addConstraint(Sketcher.Constraint("Horizontal", 9))
sketch12.addConstraint(Sketcher.Constraint("Vertical", 10))
sketch12.addConstraint(Sketcher.Constraint("Horizontal", 11))
sketch12.addConstraint(Sketcher.Constraint("Vertical", 12))
sketch12.addConstraint(Sketcher.Constraint("Horizontal", 13))
sketch12.addConstraint(Sketcher.Constraint("Vertical", 14))
sketch12.addConstraint(Sketcher.Constraint("Horizontal", 15))
sketch12.addConstraint(Sketcher.Constraint("Vertical", 16))
sketch12.addConstraint(Sketcher.Constraint("Horizontal", 17))
sketch12.addConstraint(Sketcher.Constraint("Vertical", 18))
sketch12.addConstraint(Sketcher.Constraint("Horizontal", 19))
sketch12.addConstraint(Sketcher.Constraint("Vertical", 20))
sketch12.addConstraint(Sketcher.Constraint("Horizontal", 21))
sketch12.addConstraint(Sketcher.Constraint("Vertical", 22))
sketch12.addConstraint(Sketcher.Constraint("Horizontal", 23))
sketch12.addConstraint(Sketcher.Constraint("Symmetric", 0, 2, 18, 2, -1, 1))
sketch12.addConstraint(Sketcher.Constraint("Symmetric", 7, 2, 21, 2, -1, 1))
sketch12.addConstraint(Sketcher.Constraint("Symmetric", 9, 2, 12, 2, -2))
sketch12.addConstraint(Sketcher.Constraint("Symmetric", 11, 2, 14, 2, -2))
sketch12.addConstraint(Sketcher.Constraint("Symmetric", 5, 2, 16, 2, -2))
sketch12.addConstraint(Sketcher.Constraint("Symmetric", 7, 2, 18, 2, -2))
sketch12.addConstraint(Sketcher.Constraint("Symmetric", 2, 2, 23, 2, -2))
sketch12.addConstraint(Sketcher.Constraint("Vertical", 7, 2, 8, 2))
sketch12.addConstraint(Sketcher.Constraint("DistanceY", 0, 1, 0, 2, 55.0))
sketch12.addConstraint(Sketcher.Constraint("DistanceY", 4, 1, 4, 2, 65.0))
sketch12.addConstraint(Sketcher.Constraint("DistanceY", 8, 1, 8, 2, 25.0))
sketch12.addConstraint(Sketcher.Constraint("DistanceX", 1, 2, -1, 1, 220.0))
sketch12.addConstraint(Sketcher.Constraint("DistanceX", 5, 2, -1, 1, 165.0))
sketch12.addConstraint(Sketcher.Constraint("DistanceX", 9, 2, -1, 1, 160.0))
sketch12.addConstraint(Sketcher.Constraint("DistanceY", 8, 2, 3, 2, 20.0))
sketch12.addConstraint(Sketcher.Constraint("DistanceY", -1, 1, 0, 2, 147.9))
sketch12.addConstraint(Sketcher.Constraint("DistanceX", 1, 1, 1, 2, 68.818))
pocket7 = body.newObject("PartDesign::Pocket", "Pocket006")
pocket7.Profile = sketch12
pocket7.Type = "ThroughAll"
pocket7.Reversed = True
doc.recompute()

chamfer = body.newObject("PartDesign::Chamfer", "Chamfer")
chamfer.Base = (pocket7, edges_at(pocket7, [
    (288.818, 15, 147.9),
    (165, 15, -147.9),
    (288.818, 15, -147.9),
    (-288.818, 15, -147.9),
    (-165, 15, -147.9),
    (-288.818, 15, 147.9),
]))
chamfer.Size = 30
doc.recompute()

chamfer2 = body.newObject("PartDesign::Chamfer", "Chamfer001")
chamfer2.Base = (chamfer, edges_at(chamfer, [
    (-125, 15, -27.9),
    (125, 15, -27.9),
    (-120, 15, 19.1),
    (-120, 15, 72.9),
    (120, 15, 72.9),
    (120, 15, 19.1),
    (220, 15, 92.9),
    (288.818, 15, 92.9),
    (288.818, 15, -82.9),
    (165, 15, -82.9),
    (160, 15, 47.9),
    (288.818, 15, 47.9),
    (-160, 15, 47.9),
    (-288.818, 15, 47.9),
    (-288.818, 15, -82.9),
    (-165, 15, -82.9),
    (-288.818, 15, 92.9),
    (-220, 15, 92.9),
    (150, 15, 92.9),
    (-150, 15, 92.9),
]))
chamfer2.Size = 10
doc.recompute()

fillet = body.newObject("PartDesign::Fillet", "Fillet")
fillet.Base = (chamfer2, edges_at(chamfer2, [
    (-145, 15, -27.9),
    (147, 15, -27.9),
    (-125, 15, -0.9),
    (125, 15, -0.9),
]))
fillet.Radius = 5
doc.recompute()

fillet2 = body.newObject("PartDesign::Fillet", "Fillet001")
fillet2.Base = (fillet, edges_at(fillet, [
    (220, 15, 147.9),
    (288.818, 15, 72.9),
    (160, 15, 72.9),
    (-160, 15, 72.9),
    (-288.818, 15, 72.9),
    (-220, 15, 147.9),
    (-258.818, 15, -147.9),
    (-195, 15, -147.9),
    (-165, 15, -117.9),
    (165, 15, -117.9),
    (258.818, 15, -147.9),
    (195, 15, -147.9),
    (-288.818, 15, -117.9),
    (-258.818, 15, 147.9),
    (-288.818, 15, 117.9),
    (288.818, 15, 117.9),
    (258.818, 15, 147.9),
    (288.818, 15, -117.9),
    (-288.818, 15, 57.9),
    (-170, 15, 47.9),
    (-278.818, 15, 47.9),
    (-160, 15, 57.9),
    (160, 15, 57.9),
    (278.818, 15, 47.9),
    (170, 15, 47.9),
    (-150, 15, 102.9),
    (140, 15, 92.9),
    (-140, 15, 92.9),
    (150, 15, 102.9),
    (-120, 15, 29.1),
    (-120, 15, 62.9),
    (110, 15, 72.9),
    (-110, 15, 72.9),
    (110, 15, 19.1),
    (-110, 15, 19.1),
    (120, 15, 29.1),
    (120, 15, 62.9),
    (288.818, 15, -92.9),
    (175, 15, -82.9),
    (278.818, 15, -82.9),
    (165, 15, -92.9),
    (-175, 15, -82.9),
    (-278.818, 15, -82.9),
    (-288.818, 15, -92.9),
    (-165, 15, -92.9),
    (-288.818, 15, 102.9),
    (-230, 15, 92.9),
    (-278.818, 15, 92.9),
    (-220, 15, 102.9),
    (288.818, 15, 57.9),
    (220, 15, 102.9),
    (278.818, 15, 92.9),
    (230, 15, 92.9),
    (288.818, 15, 102.9),
]))
fillet2.Radius = 10
doc.recompute()

chamfer3 = body.newObject("PartDesign::Chamfer", "Chamfer002")
chamfer3.Base = (fillet2, edges_at(fillet2, [(-135, 0, -97.9), (136, 0, -97.9)]))
chamfer3.Size = 15
doc.recompute()

chamfer4 = body.newObject("PartDesign::Chamfer", "Chamfer003")
chamfer4.Base = (chamfer3, edges_at(chamfer3, [
    (-236.909, 30, 167.9),
    (-224.409, 30, -167.9),
    (236.909, 30, 167.9),
    (224.409, 30, -167.9),
]))
chamfer4.Size = 10

sketch13 = body.newObject("Sketcher::SketchObject", "Sketch012")
sketch13.AttachmentSupport = (doc.getObject("XZ_Plane"), [""])
sketch13.MapMode = "FlatFace"
sketch13.AttachmentOffset = App.Placement(App.Vector(0, 0, -30), App.Rotation())
sketch13.addGeometry(Part.Circle(App.Vector(-155, -10.9, 0), App.Vector(0, 0, 1), 2.5), False)
sketch13.addGeometry(Part.Circle(App.Vector(-155, -87.9, 0), App.Vector(0, 0, 1), 2.5), False)
sketch13.addGeometry(Part.Circle(App.Vector(157, -87.9, 0), App.Vector(0, 0, 1), 2.5), False)
sketch13.addGeometry(Part.Circle(App.Vector(157, -10.9, 0), App.Vector(0, 0, 1), 2.5), False)
sketch13.addConstraint(Sketcher.Constraint("Equal", 0, 1))
sketch13.addConstraint(Sketcher.Constraint("Equal", 1, 2))
sketch13.addConstraint(Sketcher.Constraint("Equal", 2, 3))
sketch13.addConstraint(Sketcher.Constraint("Horizontal", 1, 3, 2, 3))
sketch13.addConstraint(Sketcher.Constraint("Horizontal", 0, 3, 3, 3))
sketch13.addConstraint(Sketcher.Constraint("Vertical", 0, 3, 1, 3))
sketch13.addConstraint(Sketcher.Constraint("Vertical", 2, 3, 3, 3))
sketch13.addConstraint(Sketcher.Constraint("Diameter", 0, 5.0))
sketch13.addConstraint(Sketcher.Constraint("DistanceX", 0, 3, -1, 1, 155.0))
sketch13.addConstraint(Sketcher.Constraint("DistanceX", -1, 1, 2, 3, 157.0))
sketch13.addConstraint(Sketcher.Constraint("DistanceY", 1, 3, 0, 3, 77.0))
sketch13.addConstraint(Sketcher.Constraint("DistanceY", 0, 3, -1, 1, 10.9))
doc.recompute()
hole = body.newObject("PartDesign::Hole", "Hole")
hole.Profile = sketch13
hole.ThreadType = "None"
hole.Diameter = 5
hole.DepthType = "Dimension"
hole.Depth = 15
hole.DrillPoint = "Angled"
hole.DrillPointAngle = 118
hole.Reversed = True

sketch14 = body.newObject("Sketcher::SketchObject", "Sketch013")
sketch14.AttachmentSupport = (doc.getObject("XZ_Plane"), [""])
sketch14.MapMode = "FlatFace"
sketch14.AttachmentOffset = App.Placement(App.Vector(0, 0, -30), App.Rotation())
sketch14.addGeometry(Part.Circle(App.Vector(-215, 77.9, 0), App.Vector(0, 0, 1), 1.65), False)
sketch14.addGeometry(Part.Circle(App.Vector(-165, 77.9, 0), App.Vector(0, 0, 1), 1.65), False)
sketch14.addGeometry(Part.Circle(App.Vector(-215, 147.9, 0), App.Vector(0, 0, 1), 1.65), False)
sketch14.addGeometry(Part.Circle(App.Vector(-165, 147.9, 0), App.Vector(0, 0, 1), 1.65), False)
sketch14.addGeometry(Part.Circle(App.Vector(-155, 61.9, 0), App.Vector(0, 0, 1), 1.65), False)
sketch14.addGeometry(Part.Circle(App.Vector(-125, 61.9, 0), App.Vector(0, 0, 1), 1.65), False)
sketch14.addGeometry(Part.Circle(App.Vector(-155, 111.9, 0), App.Vector(0, 0, 1), 1.65), False)
sketch14.addGeometry(Part.Circle(App.Vector(155, 111.9, 0), App.Vector(0, 0, 1), 1.65), False)
sketch14.addGeometry(Part.Circle(App.Vector(125, 61.9, 0), App.Vector(0, 0, 1), 1.65), False)
sketch14.addGeometry(Part.Circle(App.Vector(155, 61.9, 0), App.Vector(0, 0, 1), 1.65), False)
sketch14.addGeometry(Part.Circle(App.Vector(166, 78.9, 0), App.Vector(0, 0, 1), 1.65), False)
sketch14.addGeometry(Part.Circle(App.Vector(166, 146.9, 0), App.Vector(0, 0, 1), 1.65), False)
sketch14.addGeometry(Part.Circle(App.Vector(214, 146.9, 0), App.Vector(0, 0, 1), 1.65), False)
sketch14.addGeometry(Part.Circle(App.Vector(214, 78.9, 0), App.Vector(0, 0, 1), 1.65), False)
sketch14.addConstraint(Sketcher.Constraint("Equal", 0, 1))
sketch14.addConstraint(Sketcher.Constraint("Equal", 1, 2))
sketch14.addConstraint(Sketcher.Constraint("Equal", 2, 3))
sketch14.addConstraint(Sketcher.Constraint("Equal", 3, 4))
sketch14.addConstraint(Sketcher.Constraint("Equal", 4, 5))
sketch14.addConstraint(Sketcher.Constraint("Equal", 5, 6))
sketch14.addConstraint(Sketcher.Constraint("Equal", 6, 7))
sketch14.addConstraint(Sketcher.Constraint("Equal", 7, 8))
sketch14.addConstraint(Sketcher.Constraint("Equal", 8, 9))
sketch14.addConstraint(Sketcher.Constraint("Equal", 9, 10))
sketch14.addConstraint(Sketcher.Constraint("Equal", 10, 11))
sketch14.addConstraint(Sketcher.Constraint("Equal", 11, 12))
sketch14.addConstraint(Sketcher.Constraint("Equal", 12, 13))
sketch14.addConstraint(Sketcher.Constraint("Symmetric", 6, 3, 7, 3, -2))
sketch14.addConstraint(Sketcher.Constraint("Symmetric", 5, 3, 8, 3, -2))
sketch14.addConstraint(Sketcher.Constraint("Symmetric", 4, 3, 9, 3, -2))
sketch14.addConstraint(Sketcher.Constraint("Horizontal", 0, 3, 1, 3))
sketch14.addConstraint(Sketcher.Constraint("Horizontal", 2, 3, 3, 3))
sketch14.addConstraint(Sketcher.Constraint("Horizontal", 4, 3, 5, 3))
sketch14.addConstraint(Sketcher.Constraint("Horizontal", 11, 3, 12, 3))
sketch14.addConstraint(Sketcher.Constraint("Horizontal", 10, 3, 13, 3))
sketch14.addConstraint(Sketcher.Constraint("Vertical", 0, 3, 2, 3))
sketch14.addConstraint(Sketcher.Constraint("Vertical", 1, 3, 3, 3))
sketch14.addConstraint(Sketcher.Constraint("Vertical", 4, 3, 6, 3))
sketch14.addConstraint(Sketcher.Constraint("Vertical", 10, 3, 11, 3))
sketch14.addConstraint(Sketcher.Constraint("Vertical", 12, 3, 13, 3))
sketch14.addConstraint(Sketcher.Constraint("Diameter", 0, 3.3))
sketch14.addConstraint(Sketcher.Constraint("DistanceX", 0, 3, -1, 1, 215.0))
sketch14.addConstraint(Sketcher.Constraint("DistanceX", 1, 3, -1, 1, 165.0))
sketch14.addConstraint(Sketcher.Constraint("DistanceX", 4, 3, -1, 1, 155.0))
sketch14.addConstraint(Sketcher.Constraint("DistanceX", 5, 3, -1, 1, 125.0))
sketch14.addConstraint(Sketcher.Constraint("DistanceX", -1, 1, 10, 3, 166.0))
sketch14.addConstraint(Sketcher.Constraint("DistanceX", -1, 1, 12, 3, 214.0))
sketch14.addConstraint(Sketcher.Constraint("DistanceY", 0, 3, 2, 3, 70.0))
sketch14.addConstraint(Sketcher.Constraint("DistanceY", 4, 3, 1, 3, 16.0))
sketch14.addConstraint(Sketcher.Constraint("DistanceY", 1, 3, 6, 3, 34.0))
sketch14.addConstraint(Sketcher.Constraint("DistanceY", 9, 3, 10, 3, 17.0))
sketch14.addConstraint(Sketcher.Constraint("DistanceY", 7, 3, 11, 3, 35.0))
sketch14.addConstraint(Sketcher.Constraint("DistanceY", -1, 1, 0, 3, 77.9))
doc.recompute()
hole2 = body.newObject("PartDesign::Hole", "Hole001")
hole2.Profile = sketch14
hole2.ThreadType = "None"
hole2.Diameter = 3.3
hole2.DepthType = "Dimension"
hole2.Depth = 10.1
hole2.DrillPoint = "Angled"
hole2.DrillPointAngle = 118
hole2.Reversed = True

sketch15 = body.newObject("Sketcher::SketchObject", "Sketch014")
sketch15.AttachmentSupport = (doc.getObject("XZ_Plane"), [""])
sketch15.MapMode = "FlatFace"
sketch15.AttachmentOffset = App.Placement(App.Vector(0, 0, -30), App.Rotation())
sketch15.addGeometry(Part.Circle(App.Vector(-135, -140.4, 0), App.Vector(0, 0, 1), 1.65), False)
sketch15.addGeometry(Part.Circle(App.Vector(-135, -120.4, 0), App.Vector(0, 0, 1), 1.65), False)
sketch15.addGeometry(Part.Circle(App.Vector(135, -140.4, 0), App.Vector(0, 0, 1), 1.65), False)
sketch15.addGeometry(Part.Circle(App.Vector(135, -120.4, 0), App.Vector(0, 0, 1), 1.65), False)
sketch15.addConstraint(Sketcher.Constraint("Equal", 0, 1))
sketch15.addConstraint(Sketcher.Constraint("Equal", 1, 2))
sketch15.addConstraint(Sketcher.Constraint("Equal", 2, 3))
sketch15.addConstraint(Sketcher.Constraint("Symmetric", 0, 3, 2, 3, -2))
sketch15.addConstraint(Sketcher.Constraint("Symmetric", 1, 3, 3, 3, -2))
sketch15.addConstraint(Sketcher.Constraint("Vertical", 0, 3, 1, 3))
sketch15.addConstraint(Sketcher.Constraint("Diameter", 0, 3.3))
sketch15.addConstraint(Sketcher.Constraint("DistanceX", 0, 3, -1, 1, 135.0))
sketch15.addConstraint(Sketcher.Constraint("DistanceY", 0, 3, 1, 3, 20.0))
sketch15.addConstraint(Sketcher.Constraint("DistanceY", 0, 3, -1, 1, 140.4))
doc.recompute()
hole3 = body.newObject("PartDesign::Hole", "Hole002")
hole3.Profile = sketch15
hole3.ThreadType = "None"
hole3.Diameter = 3.3
hole3.DepthType = "Dimension"
hole3.Depth = 10.1
hole3.DrillPoint = "Angled"
hole3.DrillPointAngle = 118
hole3.Reversed = True

sketch16 = body.newObject("Sketcher::SketchObject", "Sketch015")
sketch16.AttachmentSupport = (doc.getObject("XZ_Plane"), [""])
sketch16.MapMode = "FlatFace"
sketch16.addGeometry(Part.Circle(App.Vector(260, -32.5, 0), App.Vector(0, 0, 1), 2.5), False)
sketch16.addGeometry(Part.Circle(App.Vector(180, -32.5, 0), App.Vector(0, 0, 1), 2.5), False)
sketch16.addGeometry(Part.Circle(App.Vector(180, 32.5, 0), App.Vector(0, 0, 1), 2.5), False)
sketch16.addGeometry(Part.Circle(App.Vector(260, 32.5, 0), App.Vector(0, 0, 1), 2.5), False)
sketch16.addGeometry(Part.Circle(App.Vector(-260, 32.5, 0), App.Vector(0, 0, 1), 2.5), False)
sketch16.addGeometry(Part.Circle(App.Vector(-180, 32.5, 0), App.Vector(0, 0, 1), 2.5), False)
sketch16.addGeometry(Part.Circle(App.Vector(-180, -32.5, 0), App.Vector(0, 0, 1), 2.5), False)
sketch16.addGeometry(Part.Circle(App.Vector(-260, -32.5, 0), App.Vector(0, 0, 1), 2.5), False)
sketch16.addConstraint(Sketcher.Constraint("Equal", 0, 1))
sketch16.addConstraint(Sketcher.Constraint("Equal", 1, 2))
sketch16.addConstraint(Sketcher.Constraint("Equal", 2, 3))
sketch16.addConstraint(Sketcher.Constraint("Equal", 3, 4))
sketch16.addConstraint(Sketcher.Constraint("Equal", 4, 5))
sketch16.addConstraint(Sketcher.Constraint("Equal", 5, 6))
sketch16.addConstraint(Sketcher.Constraint("Equal", 6, 7))
sketch16.addConstraint(Sketcher.Constraint("Symmetric", 0, 3, 4, 3, -1, 1))
sketch16.addConstraint(Sketcher.Constraint("Symmetric", 1, 3, 5, 3, -1, 1))
sketch16.addConstraint(Sketcher.Constraint("Symmetric", 2, 3, 6, 3, -1, 1))
sketch16.addConstraint(Sketcher.Constraint("Symmetric", 3, 3, 7, 3, -1, 1))
sketch16.addConstraint(Sketcher.Constraint("Symmetric", 3, 3, 4, 3, -2))
sketch16.addConstraint(Sketcher.Constraint("Symmetric", 2, 3, 5, 3, -2))
sketch16.addConstraint(Sketcher.Constraint("Horizontal", 0, 3, 1, 3))
sketch16.addConstraint(Sketcher.Constraint("Diameter", 0, 5.0))
sketch16.addConstraint(Sketcher.Constraint("DistanceX", -1, 1, 0, 3, 260.0))
sketch16.addConstraint(Sketcher.Constraint("DistanceX", -1, 1, 1, 3, 180.0))
sketch16.addConstraint(Sketcher.Constraint("DistanceY", 1, 3, 2, 3, 65.0))
doc.recompute()
hole4 = body.newObject("PartDesign::Hole", "Hole003")
hole4.Profile = sketch16
hole4.ThreadType = "None"
hole4.Diameter = 5
hole4.DepthType = "Dimension"
hole4.Depth = 15
hole4.DrillPoint = "Angled"
hole4.DrillPointAngle = 118

doc.recompute()
